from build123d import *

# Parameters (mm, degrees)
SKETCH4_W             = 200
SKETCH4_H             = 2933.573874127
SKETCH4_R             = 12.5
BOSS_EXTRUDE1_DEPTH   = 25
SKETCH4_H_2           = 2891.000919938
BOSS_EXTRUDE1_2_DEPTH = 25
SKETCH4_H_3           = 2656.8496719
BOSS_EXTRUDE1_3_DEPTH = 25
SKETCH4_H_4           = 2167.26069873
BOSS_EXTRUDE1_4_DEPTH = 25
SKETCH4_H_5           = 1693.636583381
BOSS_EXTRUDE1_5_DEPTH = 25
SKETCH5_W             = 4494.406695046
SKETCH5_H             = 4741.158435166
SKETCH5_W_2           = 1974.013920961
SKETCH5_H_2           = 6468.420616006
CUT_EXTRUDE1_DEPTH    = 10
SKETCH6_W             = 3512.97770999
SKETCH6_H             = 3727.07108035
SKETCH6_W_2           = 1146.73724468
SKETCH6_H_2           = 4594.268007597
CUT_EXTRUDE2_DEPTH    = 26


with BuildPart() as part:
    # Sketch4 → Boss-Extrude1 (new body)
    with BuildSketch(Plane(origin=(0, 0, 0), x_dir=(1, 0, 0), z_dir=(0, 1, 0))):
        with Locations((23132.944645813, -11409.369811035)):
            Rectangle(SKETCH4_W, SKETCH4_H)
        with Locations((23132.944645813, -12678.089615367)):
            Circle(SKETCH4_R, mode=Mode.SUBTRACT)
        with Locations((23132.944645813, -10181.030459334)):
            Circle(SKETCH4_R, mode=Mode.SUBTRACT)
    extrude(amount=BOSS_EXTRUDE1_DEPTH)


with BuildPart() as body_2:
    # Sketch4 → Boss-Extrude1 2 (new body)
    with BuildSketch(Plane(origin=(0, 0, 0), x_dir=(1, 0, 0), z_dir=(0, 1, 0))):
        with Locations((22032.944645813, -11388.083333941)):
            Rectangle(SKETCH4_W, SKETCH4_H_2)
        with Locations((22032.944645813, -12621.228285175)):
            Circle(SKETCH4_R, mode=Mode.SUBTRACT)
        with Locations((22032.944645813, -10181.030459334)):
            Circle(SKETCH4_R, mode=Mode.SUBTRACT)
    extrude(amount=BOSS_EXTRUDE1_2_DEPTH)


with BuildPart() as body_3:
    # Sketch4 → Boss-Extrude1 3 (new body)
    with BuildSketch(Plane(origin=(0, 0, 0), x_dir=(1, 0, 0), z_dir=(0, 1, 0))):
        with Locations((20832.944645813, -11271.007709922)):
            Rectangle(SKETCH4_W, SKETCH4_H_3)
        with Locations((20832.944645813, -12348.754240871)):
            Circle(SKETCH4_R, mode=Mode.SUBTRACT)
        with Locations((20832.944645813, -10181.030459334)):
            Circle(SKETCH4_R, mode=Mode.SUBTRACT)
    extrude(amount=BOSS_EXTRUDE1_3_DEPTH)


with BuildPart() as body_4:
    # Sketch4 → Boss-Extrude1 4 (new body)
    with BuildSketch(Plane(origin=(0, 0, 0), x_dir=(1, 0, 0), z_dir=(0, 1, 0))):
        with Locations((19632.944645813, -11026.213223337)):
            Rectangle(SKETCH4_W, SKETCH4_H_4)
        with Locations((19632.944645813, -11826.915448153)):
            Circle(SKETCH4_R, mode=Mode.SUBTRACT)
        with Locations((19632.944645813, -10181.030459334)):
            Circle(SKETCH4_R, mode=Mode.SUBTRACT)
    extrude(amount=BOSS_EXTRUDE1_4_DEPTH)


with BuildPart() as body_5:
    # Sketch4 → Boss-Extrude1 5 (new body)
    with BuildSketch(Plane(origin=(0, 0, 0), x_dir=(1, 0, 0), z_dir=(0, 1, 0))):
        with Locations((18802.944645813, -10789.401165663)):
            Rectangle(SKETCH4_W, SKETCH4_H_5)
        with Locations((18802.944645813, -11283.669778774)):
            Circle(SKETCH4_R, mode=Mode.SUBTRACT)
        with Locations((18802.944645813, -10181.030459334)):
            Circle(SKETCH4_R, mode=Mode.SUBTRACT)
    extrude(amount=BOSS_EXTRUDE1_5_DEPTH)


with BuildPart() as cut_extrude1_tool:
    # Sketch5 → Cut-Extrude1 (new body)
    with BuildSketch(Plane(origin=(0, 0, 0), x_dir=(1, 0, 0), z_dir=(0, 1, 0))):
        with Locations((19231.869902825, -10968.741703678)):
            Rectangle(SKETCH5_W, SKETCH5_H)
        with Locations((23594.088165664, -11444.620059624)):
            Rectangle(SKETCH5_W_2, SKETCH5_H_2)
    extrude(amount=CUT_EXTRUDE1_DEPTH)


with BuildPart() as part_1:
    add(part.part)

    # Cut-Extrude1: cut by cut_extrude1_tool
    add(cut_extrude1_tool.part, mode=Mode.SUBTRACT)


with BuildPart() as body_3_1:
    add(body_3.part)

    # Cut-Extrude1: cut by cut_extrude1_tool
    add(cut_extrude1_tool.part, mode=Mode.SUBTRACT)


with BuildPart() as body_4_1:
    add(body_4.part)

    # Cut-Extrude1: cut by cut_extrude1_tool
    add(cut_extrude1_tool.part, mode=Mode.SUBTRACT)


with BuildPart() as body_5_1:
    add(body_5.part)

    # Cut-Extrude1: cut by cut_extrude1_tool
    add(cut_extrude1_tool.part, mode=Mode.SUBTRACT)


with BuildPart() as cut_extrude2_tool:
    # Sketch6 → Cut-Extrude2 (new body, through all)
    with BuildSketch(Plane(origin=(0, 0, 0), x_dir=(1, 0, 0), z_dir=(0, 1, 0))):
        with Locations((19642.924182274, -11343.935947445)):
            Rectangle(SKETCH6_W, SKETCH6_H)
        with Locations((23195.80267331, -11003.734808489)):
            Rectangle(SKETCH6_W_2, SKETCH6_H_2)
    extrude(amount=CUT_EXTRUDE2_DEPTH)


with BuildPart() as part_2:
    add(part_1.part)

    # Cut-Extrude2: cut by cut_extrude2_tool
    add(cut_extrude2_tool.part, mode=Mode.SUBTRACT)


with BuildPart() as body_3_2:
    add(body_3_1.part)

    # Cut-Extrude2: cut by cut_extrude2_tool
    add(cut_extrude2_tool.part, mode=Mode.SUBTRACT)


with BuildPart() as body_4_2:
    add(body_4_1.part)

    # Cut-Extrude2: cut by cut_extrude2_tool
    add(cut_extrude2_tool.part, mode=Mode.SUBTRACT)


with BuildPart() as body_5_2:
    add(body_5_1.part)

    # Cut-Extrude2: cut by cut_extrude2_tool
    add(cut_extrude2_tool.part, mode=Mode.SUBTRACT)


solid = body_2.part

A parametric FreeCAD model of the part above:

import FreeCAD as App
import Part
import Sketcher

doc = App.newDocument("Part")
body = doc.addObject("PartDesign::Body", "Body")

# Sketch on XZ plane
sketch1 = doc.addObject("Sketcher::SketchObject", "Sketch")
body.addObject(sketch1)
sketch1.AttachmentSupport = (doc.XZ_Plane, [""])
sketch1.MapMode = "FlatFace"
sketch1.addGeometry([
    Part.LineSegment(App.Vector(23033, 9943, 0), App.Vector(23033, 12876, 0)),  # 0
    Part.LineSegment(App.Vector(23033, 12876, 0), App.Vector(23233, 12876, 0)),  # 1
    Part.LineSegment(App.Vector(23233, 12876, 0), App.Vector(23233, 9943, 0)),  # 2
    Part.LineSegment(App.Vector(23233, 9943, 0), App.Vector(23033, 9943, 0)),  # 3
    Part.Circle(App.Vector(23133, 12678, 0), App.Vector(0, 0, 1), 12),  # 4
    Part.Circle(App.Vector(23133, 10181, 0), App.Vector(0, 0, 1), 12),  # 5
], False)
sketch1.addConstraint([
    Sketcher.Constraint("Coincident", 0, 2, 1, 1),
    Sketcher.Constraint("Coincident", 1, 2, 2, 1),
    Sketcher.Constraint("Coincident", 2, 2, 3, 1),
    Sketcher.Constraint("Coincident", 3, 2, 0, 1),
    Sketcher.Constraint("Vertical", 0),
    Sketcher.Constraint("Horizontal", 1),
    Sketcher.Constraint("Vertical", 2),
    Sketcher.Constraint("Horizontal", 3),
    Sketcher.Constraint("Equal", 4, 5),
    Sketcher.Constraint("Vertical", 4, 3, 5, 3),
    Sketcher.Constraint("Diameter", 4, 25.0),
    Sketcher.Constraint("DistanceX", 1, 1, 1, 2, 200.0),
    Sketcher.Constraint("DistanceX", 0, 2, 4, 3, 100.0),
    Sketcher.Constraint("DistanceY", 0, 1, 0, 2, 2933.573874),
    Sketcher.Constraint("DistanceY", -1, 1, 5, 3, 10181.030459),
    Sketcher.Constraint("DistanceY", -1, 1, 0, 2, 12876.156748),
    Sketcher.Constraint("DistanceY", 2, 2, 4, 3, 2735.506741),
    Sketcher.Constraint("DistanceX", -1, 1, 4, 3, 23132.944646),
])
pad1 = doc.addObject("PartDesign::Pad", "Pad")
body.addObject(pad1)
pad1.Profile = sketch1
pad1.Length = 25
pad1.Reversed = True
body2 = doc.addObject("PartDesign::Body", "Body001")

# Sketch on XZ plane
sketch2 = doc.addObject("Sketcher::SketchObject", "Sketch001")
body2.addObject(sketch2)
sketch2.AttachmentSupport = (doc.getObject("XZ_Plane001"), [""])
sketch2.MapMode = "FlatFace"
sketch2.addGeometry([
    Part.LineSegment(App.Vector(21933, 9943, 0), App.Vector(21933, 12834, 0)),  # 0
    Part.LineSegment(App.Vector(21933, 12834, 0), App.Vector(22133, 12834, 0)),  # 1
    Part.LineSegment(App.Vector(22133, 12834, 0), App.Vector(22133, 9943, 0)),  # 2
    Part.LineSegment(App.Vector(22133, 9943, 0), App.Vector(21933, 9943, 0)),  # 3
    Part.Circle(App.Vector(22033, 12621, 0), App.Vector(0, 0, 1), 12),  # 4
    Part.Circle(App.Vector(22033, 10181, 0), App.Vector(0, 0, 1), 12),  # 5
], False)
sketch2.addConstraint([
    Sketcher.Constraint("Coincident", 0, 2, 1, 1),
    Sketcher.Constraint("Coincident", 1, 2, 2, 1),
    Sketcher.Constraint("Coincident", 2, 2, 3, 1),
    Sketcher.Constraint("Coincident", 3, 2, 0, 1),
    Sketcher.Constraint("Vertical", 0),
    Sketcher.Constraint("Horizontal", 1),
    Sketcher.Constraint("Vertical", 2),
    Sketcher.Constraint("Horizontal", 3),
    Sketcher.Constraint("Equal", 4, 5),
    Sketcher.Constraint("Vertical", 4, 3, 5, 3),
    Sketcher.Constraint("Diameter", 4, 25.0),
    Sketcher.Constraint("DistanceX", 1, 1, 1, 2, 200.0),
    Sketcher.Constraint("DistanceX", 0, 2, 4, 3, 100.0),
    Sketcher.Constraint("DistanceY", 0, 1, 0, 2, 2891.00092),
    Sketcher.Constraint("DistanceY", -1, 1, 5, 3, 10181.030459),
    Sketcher.Constraint("DistanceY", 4, 3, 0, 2, 212.355509),
    Sketcher.Constraint("DistanceX", -1, 1, 4, 3, 22032.944646),
    Sketcher.Constraint("DistanceY", -1, 1, 4, 3, 12621.228285),
])
pad2 = doc.addObject("PartDesign::Pad", "Pad001")
body2.addObject(pad2)
pad2.Profile = sketch2
pad2.Length = 25
pad2.Reversed = True
body3 = doc.addObject("PartDesign::Body", "Body002")

# Sketch on XZ plane
sketch3 = doc.addObject("Sketcher::SketchObject", "Sketch002")
body3.addObject(sketch3)
sketch3.AttachmentSupport = (doc.getObject("XZ_Plane002"), [""])
sketch3.MapMode = "FlatFace"
sketch3.addGeometry([
    Part.LineSegment(App.Vector(20733, 9943, 0), App.Vector(20733, 12599, 0)),  # 0
    Part.LineSegment(App.Vector(20733, 12599, 0), App.Vector(20933, 12599, 0)),  # 1
    Part.LineSegment(App.Vector(20933, 12599, 0), App.Vector(20933, 9943, 0)),  # 2
    Part.LineSegment(App.Vector(20933, 9943, 0), App.Vector(20733, 9943, 0)),  # 3
    Part.Circle(App.Vector(20833, 12349, 0), App.Vector(0, 0, 1), 12),  # 4
    Part.Circle(App.Vector(20833, 10181, 0), App.Vector(0, 0, 1), 12),  # 5
], False)
sketch3.addConstraint([
    Sketcher.Constraint("Coincident", 0, 2, 1, 1),
    Sketcher.Constraint("Coincident", 1, 2, 2, 1),
    Sketcher.Constraint("Coincident", 2, 2, 3, 1),
    Sketcher.Constraint("Coincident", 3, 2, 0, 1),
    Sketcher.Constraint("Vertical", 0),
    Sketcher.Constraint("Horizontal", 1),
    Sketcher.Constraint("Vertical", 2),
    Sketcher.Constraint("Horizontal", 3),
    Sketcher.Constraint("Equal", 4, 5),
    Sketcher.Constraint("Vertical", 4, 3, 5, 3),
    Sketcher.Constraint("Diameter", 4, 25.0),
    Sketcher.Constraint("DistanceX", 1, 1, 1, 2, 200.0),
    Sketcher.Constraint("DistanceX", 0, 2, 4, 3, 100.0),
    Sketcher.Constraint("DistanceY", 0, 1, 0, 2, 2656.849672),
    Sketcher.Constraint("DistanceY", -1, 1, 4, 3, 12348.754241),
    Sketcher.Constraint("DistanceY", -1, 1, 5, 3, 10181.030459),
    Sketcher.Constraint("DistanceX", -1, 1, 4, 3, 20832.944646),
    Sketcher.Constraint("DistanceY", -1, 1, 0, 2, 12599.432546),
])
pad3 = doc.addObject("PartDesign::Pad", "Pad002")
body3.addObject(pad3)
pad3.Profile = sketch3
pad3.Length = 25
pad3.Reversed = True
body4 = doc.addObject("PartDesign::Body", "Body003")

# Sketch on XZ plane
sketch4 = doc.addObject("Sketcher::SketchObject", "Sketch003")
body4.addObject(sketch4)
sketch4.AttachmentSupport = (doc.getObject("XZ_Plane003"), [""])
sketch4.MapMode = "FlatFace"
sketch4.addGeometry([
    Part.LineSegment(App.Vector(19533, 9943, 0), App.Vector(19533, 12110, 0)),  # 0
    Part.LineSegment(App.Vector(19533, 12110, 0), App.Vector(19733, 12110, 0)),  # 1
    Part.LineSegment(App.Vector(19733, 12110, 0), App.Vector(19733, 9943, 0)),  # 2
    Part.LineSegment(App.Vector(19733, 9943, 0), App.Vector(19533, 9943, 0)),  # 3
    Part.Circle(App.Vector(19633, 11827, 0), App.Vector(0, 0, 1), 12),  # 4
    Part.Circle(App.Vector(19633, 10181, 0), App.Vector(0, 0, 1), 12),  # 5
], False)
sketch4.addConstraint([
    Sketcher.Constraint("Coincident", 0, 2, 1, 1),
    Sketcher.Constraint("Coincident", 1, 2, 2, 1),
    Sketcher.Constraint("Coincident", 2, 2, 3, 1),
    Sketcher.Constraint("Coincident", 3, 2, 0, 1),
    Sketcher.Constraint("Vertical", 0),
    Sketcher.Constraint("Horizontal", 1),
    Sketcher.Constraint("Vertical", 2),
    Sketcher.Constraint("Horizontal", 3),
    Sketcher.Constraint("Equal", 4, 5),
    Sketcher.Constraint("Vertical", 4, 3, 5, 3),
    Sketcher.Constraint("Diameter", 4, 25.0),
    Sketcher.Constraint("DistanceX", 1, 1, 1, 2, 200.0),
    Sketcher.Constraint("DistanceX", 0, 2, 4, 3, 100.0),
    Sketcher.Constraint("DistanceY", 0, 1, 0, 2, 2167.260699),
    Sketcher.Constraint("DistanceY", -1, 1, 4, 3, 11826.915448),
    Sketcher.Constraint("DistanceY", -1, 1, 5, 3, 10181.030459),
    Sketcher.Constraint("DistanceX", -1, 1, 4, 3, 19632.944646),
    Sketcher.Constraint("DistanceY", -1, 1, 0, 2, 12109.843573),
])
pad4 = doc.addObject("PartDesign::Pad", "Pad003")
body4.addObject(pad4)
pad4.Profile = sketch4
pad4.Length = 25
pad4.Reversed = True
body5 = doc.addObject("PartDesign::Body", "Body004")

# Sketch on XZ plane
sketch5 = doc.addObject("Sketcher::SketchObject", "Sketch004")
body5.addObject(sketch5)
sketch5.AttachmentSupport = (doc.getObject("XZ_Plane004"), [""])
sketch5.MapMode = "FlatFace"
sketch5.addGeometry([
    Part.LineSegment(App.Vector(18703, 9943, 0), App.Vector(18703, 11636, 0)),  # 0
    Part.LineSegment(App.Vector(18703, 11636, 0), App.Vector(18903, 11636, 0)),  # 1
    Part.LineSegment(App.Vector(18903, 11636, 0), App.Vector(18903, 9943, 0)),  # 2
    Part.LineSegment(App.Vector(18903, 9943, 0), App.Vector(18703, 9943, 0)),  # 3
    Part.Circle(App.Vector(18803, 11284, 0), App.Vector(0, 0, 1), 12),  # 4
    Part.Circle(App.Vector(18803, 10181, 0), App.Vector(0, 0, 1), 12),  # 5
], False)
sketch5.addConstraint([
    Sketcher.Constraint("Coincident", 0, 2, 1, 1),
    Sketcher.Constraint("Coincident", 1, 2, 2, 1),
    Sketcher.Constraint("Coincident", 2, 2, 3, 1),
    Sketcher.Constraint("Coincident", 3, 2, 0, 1),
    Sketcher.Constraint("Vertical", 0),
    Sketcher.Constraint("Horizontal", 1),
    Sketcher.Constraint("Vertical", 2),
    Sketcher.Constraint("Horizontal", 3),
    Sketcher.Constraint("Equal", 4, 5),
    Sketcher.Constraint("Vertical", 4, 3, 5, 3),
    Sketcher.Constraint("Diameter", 4, 25.0),
    Sketcher.Constraint("DistanceX", 1, 1, 1, 2, 200.0),
    Sketcher.Constraint("DistanceX", 0, 2, 4, 3, 100.0),
    Sketcher.Constraint("DistanceY", 5, 3, 0, 2, 1455.188998),
    Sketcher.Constraint("DistanceY", 0, 1, 0, 2, 1693.636583),
    Sketcher.Constraint("DistanceY", -1, 1, 4, 3, 11283.669779),
    Sketcher.Constraint("DistanceY", -1, 1, 5, 3, 10181.030459),
    Sketcher.Constraint("DistanceX", -1, 1, 4, 3, 18802.944646),
])
pad5 = doc.addObject("PartDesign::Pad", "Pad004")
body5.addObject(pad5)
pad5.Profile = sketch5
pad5.Length = 25
pad5.Reversed = True
body6 = doc.addObject("PartDesign::Body", "Body005")
body6.AllowCompound = True

# Sketch on XZ plane
sketch6 = doc.addObject("Sketcher::SketchObject", "Sketch005")
body6.addObject(sketch6)
sketch6.AttachmentSupport = (doc.getObject("XZ_Plane005"), [""])
sketch6.MapMode = "FlatFace"
sketch6.addGeometry([
    Part.LineSegment(App.Vector(16985, 8598, 0), App.Vector(16985, 13339, 0)),  # 0
    Part.LineSegment(App.Vector(16985, 13339, 0), App.Vector(21479, 13339, 0)),  # 1
    Part.LineSegment(App.Vector(21479, 13339, 0), App.Vector(21479, 8598, 0)),  # 2
    Part.LineSegment(App.Vector(21479, 8598, 0), App.Vector(16985, 8598, 0)),  # 3
    Part.LineSegment(App.Vector(22607, 8210, 0), App.Vector(22607, 14679, 0)),  # 4
    Part.LineSegment(App.Vector(22607, 14679, 0), App.Vector(24581, 14679, 0)),  # 5
    Part.LineSegment(App.Vector(24581, 14679, 0), App.Vector(24581, 8210, 0)),  # 6
    Part.LineSegment(App.Vector(24581, 8210, 0), App.Vector(22607, 8210, 0)),  # 7
], False)
sketch6.addConstraint([
    Sketcher.Constraint("Coincident", 0, 2, 1, 1),
    Sketcher.Constraint("Coincident", 1, 2, 2, 1),
    Sketcher.Constraint("Coincident", 2, 2, 3, 1),
    Sketcher.Constraint("Coincident", 3, 2, 0, 1),
    Sketcher.Constraint("Coincident", 4, 2, 5, 1),
    Sketcher.Constraint("Coincident", 5, 2, 6, 1),
    Sketcher.Constraint("Coincident", 6, 2, 7, 1),
    Sketcher.Constraint("Coincident", 7, 2, 4, 1),
    Sketcher.Constraint("Vertical", 0),
    Sketcher.Constraint("Horizontal", 1),
    Sketcher.Constraint("Vertical", 2),
    Sketcher.Constraint("Horizontal", 3),
    Sketcher.Constraint("Vertical", 4),
    Sketcher.Constraint("Horizontal", 5),
    Sketcher.Constraint("Vertical", 6),
    Sketcher.Constraint("Horizontal", 7),
    Sketcher.Constraint("DistanceX", 5, 1, 5, 2, 1974.013921),
    Sketcher.Constraint("DistanceX", 1, 1, 1, 2, 4494.406695),
    Sketcher.Constraint("DistanceY", 0, 1, 0, 2, 4741.158435),
    Sketcher.Constraint("DistanceY", 4, 1, 4, 2, 6468.420616),
    Sketcher.Constraint("DistanceY", -1, 1, 0, 2, 13339.320921),
    Sketcher.Constraint("DistanceX", -1, 1, 1, 2, 21479.07325),
    Sketcher.Constraint("DistanceY", -1, 1, 6, 2, 8210.409752),
    Sketcher.Constraint("DistanceX", 0, 2, 4, 2, 5622.41465),
])
pad6 = doc.addObject("PartDesign::Pad", "Pad005")
body6.addObject(pad6)
pad6.Profile = sketch6
pad6.Length = 10
pad6.Reversed = True
doc.recompute()

body7 = doc.addObject("PartDesign::Body", "Body006")
body7.BaseFeature = body6
boolean = doc.addObject("PartDesign::Boolean", "Boolean")
body.addObject(boolean)
boolean.Type = "Cut"
boolean.addObjects([body7])
doc.recompute()

body8 = doc.addObject("PartDesign::Body", "Body007")
body8.BaseFeature = body6
boolean2 = doc.addObject("PartDesign::Boolean", "Boolean001")
body3.addObject(boolean2)
boolean2.Type = "Cut"
boolean2.addObjects([body8])
doc.recompute()

body9 = doc.addObject("PartDesign::Body", "Body008")
body9.BaseFeature = body6
boolean3 = doc.addObject("PartDesign::Boolean", "Boolean002")
body4.addObject(boolean3)
boolean3.Type = "Cut"
boolean3.addObjects([body9])
doc.recompute()

boolean4 = doc.addObject("PartDesign::Boolean", "Boolean003")
body5.addObject(boolean4)
boolean4.Type = "Cut"
boolean4.addObjects([body6])
body10 = doc.addObject("PartDesign::Body", "Body009")
body10.AllowCompound = True

# Sketch on XZ plane
sketch7 = doc.addObject("Sketcher::SketchObject", "Sketch006")
body10.addObject(sketch7)
sketch7.AttachmentSupport = (doc.getObject("XZ_Plane009"), [""])
sketch7.MapMode = "FlatFace"
sketch7.addGeometry([
    Part.LineSegment(App.Vector(17886, 9480, 0), App.Vector(17886, 13207, 0)),  # 0
    Part.LineSegment(App.Vector(17886, 13207, 0), App.Vector(21399, 13207, 0)),  # 1
    Part.LineSegment(App.Vector(21399, 13207, 0), App.Vector(21399, 9480, 0)),  # 2
    Part.LineSegment(App.Vector(21399, 9480, 0), App.Vector(17886, 9480, 0)),  # 3
    Part.LineSegment(App.Vector(22622, 8707, 0), App.Vector(22622, 13301, 0)),  # 4
    Part.LineSegment(App.Vector(22622, 13301, 0), App.Vector(23769, 13301, 0)),  # 5
    Part.LineSegment(App.Vector(23769, 13301, 0), App.Vector(23769, 8707, 0)),  # 6
    Part.LineSegment(App.Vector(23769, 8707, 0), App.Vector(22622, 8707, 0)),  # 7
], False)
sketch7.addConstraint([
    Sketcher.Constraint("Coincident", 0, 2, 1, 1),
    Sketcher.Constraint("Coincident", 1, 2, 2, 1),
    Sketcher.Constraint("Coincident", 2, 2, 3, 1),
    Sketcher.Constraint("Coincident", 3, 2, 0, 1),
    Sketcher.Constraint("Coincident", 4, 2, 5, 1),
    Sketcher.Constraint("Coincident", 5, 2, 6, 1),
    Sketcher.Constraint("Coincident", 6, 2, 7, 1),
    Sketcher.Constraint("Coincident", 7, 2, 4, 1),
    Sketcher.Constraint("Vertical", 0),
    Sketcher.Constraint("Horizontal", 1),
    Sketcher.Constraint("Vertical", 2),
    Sketcher.Constraint("Horizontal", 3),
    Sketcher.Constraint("Vertical", 4),
    Sketcher.Constraint("Horizontal", 5),
    Sketcher.Constraint("Vertical", 6),
    Sketcher.Constraint("Horizontal", 7),
    Sketcher.Constraint("DistanceX", 1, 1, 1, 2, 3512.97771),
    Sketcher.Constraint("DistanceY", 0, 1, 0, 2, 3727.07108),
    Sketcher.Constraint("DistanceX", 5, 1, 5, 2, 1146.737245),
    Sketcher.Constraint("DistanceY", 4, 1, 4, 2, 4594.268008),
    Sketcher.Constraint("DistanceX", -1, 1, 4, 2, 22622.434051),
    Sketcher.Constraint("DistanceX", 1, 2, 5, 2, 2369.758258),
    Sketcher.Constraint("DistanceY", -1, 1, 0, 2, 13207.471488),
    Sketcher.Constraint("DistanceY", -1, 1, 4, 2, 13300.868812),
])
pad7 = doc.addObject("PartDesign::Pad", "Pad006")
body10.addObject(pad7)
pad7.Profile = sketch7
pad7.Length = 26
pad7.Reversed = True
doc.recompute()

body11 = doc.addObject("PartDesign::Body", "Body010")
body11.BaseFeature = body10
boolean5 = doc.addObject("PartDesign::Boolean", "Boolean004")
body.addObject(boolean5)
boolean5.Type = "Cut"
boolean5.addObjects([body11])
doc.recompute()

body12 = doc.addObject("PartDesign::Body", "Body011")
body12.BaseFeature = body10
boolean6 = doc.addObject("PartDesign::Boolean", "Boolean005")
body3.addObject(boolean6)
boolean6.Type = "Cut"
boolean6.addObjects([body12])
doc.recompute()

body13 = doc.addObject("PartDesign::Body", "Body012")
body13.BaseFeature = body10
boolean7 = doc.addObject("PartDesign::Boolean", "Boolean006")
body4.addObject(boolean7)
boolean7.Type = "Cut"
boolean7.addObjects([body13])
doc.recompute()

boolean8 = doc.addObject("PartDesign::Boolean", "Boolean007")
body5.addObject(boolean8)
boolean8.Type = "Cut"
boolean8.addObjects([body10])

doc.recompute()
